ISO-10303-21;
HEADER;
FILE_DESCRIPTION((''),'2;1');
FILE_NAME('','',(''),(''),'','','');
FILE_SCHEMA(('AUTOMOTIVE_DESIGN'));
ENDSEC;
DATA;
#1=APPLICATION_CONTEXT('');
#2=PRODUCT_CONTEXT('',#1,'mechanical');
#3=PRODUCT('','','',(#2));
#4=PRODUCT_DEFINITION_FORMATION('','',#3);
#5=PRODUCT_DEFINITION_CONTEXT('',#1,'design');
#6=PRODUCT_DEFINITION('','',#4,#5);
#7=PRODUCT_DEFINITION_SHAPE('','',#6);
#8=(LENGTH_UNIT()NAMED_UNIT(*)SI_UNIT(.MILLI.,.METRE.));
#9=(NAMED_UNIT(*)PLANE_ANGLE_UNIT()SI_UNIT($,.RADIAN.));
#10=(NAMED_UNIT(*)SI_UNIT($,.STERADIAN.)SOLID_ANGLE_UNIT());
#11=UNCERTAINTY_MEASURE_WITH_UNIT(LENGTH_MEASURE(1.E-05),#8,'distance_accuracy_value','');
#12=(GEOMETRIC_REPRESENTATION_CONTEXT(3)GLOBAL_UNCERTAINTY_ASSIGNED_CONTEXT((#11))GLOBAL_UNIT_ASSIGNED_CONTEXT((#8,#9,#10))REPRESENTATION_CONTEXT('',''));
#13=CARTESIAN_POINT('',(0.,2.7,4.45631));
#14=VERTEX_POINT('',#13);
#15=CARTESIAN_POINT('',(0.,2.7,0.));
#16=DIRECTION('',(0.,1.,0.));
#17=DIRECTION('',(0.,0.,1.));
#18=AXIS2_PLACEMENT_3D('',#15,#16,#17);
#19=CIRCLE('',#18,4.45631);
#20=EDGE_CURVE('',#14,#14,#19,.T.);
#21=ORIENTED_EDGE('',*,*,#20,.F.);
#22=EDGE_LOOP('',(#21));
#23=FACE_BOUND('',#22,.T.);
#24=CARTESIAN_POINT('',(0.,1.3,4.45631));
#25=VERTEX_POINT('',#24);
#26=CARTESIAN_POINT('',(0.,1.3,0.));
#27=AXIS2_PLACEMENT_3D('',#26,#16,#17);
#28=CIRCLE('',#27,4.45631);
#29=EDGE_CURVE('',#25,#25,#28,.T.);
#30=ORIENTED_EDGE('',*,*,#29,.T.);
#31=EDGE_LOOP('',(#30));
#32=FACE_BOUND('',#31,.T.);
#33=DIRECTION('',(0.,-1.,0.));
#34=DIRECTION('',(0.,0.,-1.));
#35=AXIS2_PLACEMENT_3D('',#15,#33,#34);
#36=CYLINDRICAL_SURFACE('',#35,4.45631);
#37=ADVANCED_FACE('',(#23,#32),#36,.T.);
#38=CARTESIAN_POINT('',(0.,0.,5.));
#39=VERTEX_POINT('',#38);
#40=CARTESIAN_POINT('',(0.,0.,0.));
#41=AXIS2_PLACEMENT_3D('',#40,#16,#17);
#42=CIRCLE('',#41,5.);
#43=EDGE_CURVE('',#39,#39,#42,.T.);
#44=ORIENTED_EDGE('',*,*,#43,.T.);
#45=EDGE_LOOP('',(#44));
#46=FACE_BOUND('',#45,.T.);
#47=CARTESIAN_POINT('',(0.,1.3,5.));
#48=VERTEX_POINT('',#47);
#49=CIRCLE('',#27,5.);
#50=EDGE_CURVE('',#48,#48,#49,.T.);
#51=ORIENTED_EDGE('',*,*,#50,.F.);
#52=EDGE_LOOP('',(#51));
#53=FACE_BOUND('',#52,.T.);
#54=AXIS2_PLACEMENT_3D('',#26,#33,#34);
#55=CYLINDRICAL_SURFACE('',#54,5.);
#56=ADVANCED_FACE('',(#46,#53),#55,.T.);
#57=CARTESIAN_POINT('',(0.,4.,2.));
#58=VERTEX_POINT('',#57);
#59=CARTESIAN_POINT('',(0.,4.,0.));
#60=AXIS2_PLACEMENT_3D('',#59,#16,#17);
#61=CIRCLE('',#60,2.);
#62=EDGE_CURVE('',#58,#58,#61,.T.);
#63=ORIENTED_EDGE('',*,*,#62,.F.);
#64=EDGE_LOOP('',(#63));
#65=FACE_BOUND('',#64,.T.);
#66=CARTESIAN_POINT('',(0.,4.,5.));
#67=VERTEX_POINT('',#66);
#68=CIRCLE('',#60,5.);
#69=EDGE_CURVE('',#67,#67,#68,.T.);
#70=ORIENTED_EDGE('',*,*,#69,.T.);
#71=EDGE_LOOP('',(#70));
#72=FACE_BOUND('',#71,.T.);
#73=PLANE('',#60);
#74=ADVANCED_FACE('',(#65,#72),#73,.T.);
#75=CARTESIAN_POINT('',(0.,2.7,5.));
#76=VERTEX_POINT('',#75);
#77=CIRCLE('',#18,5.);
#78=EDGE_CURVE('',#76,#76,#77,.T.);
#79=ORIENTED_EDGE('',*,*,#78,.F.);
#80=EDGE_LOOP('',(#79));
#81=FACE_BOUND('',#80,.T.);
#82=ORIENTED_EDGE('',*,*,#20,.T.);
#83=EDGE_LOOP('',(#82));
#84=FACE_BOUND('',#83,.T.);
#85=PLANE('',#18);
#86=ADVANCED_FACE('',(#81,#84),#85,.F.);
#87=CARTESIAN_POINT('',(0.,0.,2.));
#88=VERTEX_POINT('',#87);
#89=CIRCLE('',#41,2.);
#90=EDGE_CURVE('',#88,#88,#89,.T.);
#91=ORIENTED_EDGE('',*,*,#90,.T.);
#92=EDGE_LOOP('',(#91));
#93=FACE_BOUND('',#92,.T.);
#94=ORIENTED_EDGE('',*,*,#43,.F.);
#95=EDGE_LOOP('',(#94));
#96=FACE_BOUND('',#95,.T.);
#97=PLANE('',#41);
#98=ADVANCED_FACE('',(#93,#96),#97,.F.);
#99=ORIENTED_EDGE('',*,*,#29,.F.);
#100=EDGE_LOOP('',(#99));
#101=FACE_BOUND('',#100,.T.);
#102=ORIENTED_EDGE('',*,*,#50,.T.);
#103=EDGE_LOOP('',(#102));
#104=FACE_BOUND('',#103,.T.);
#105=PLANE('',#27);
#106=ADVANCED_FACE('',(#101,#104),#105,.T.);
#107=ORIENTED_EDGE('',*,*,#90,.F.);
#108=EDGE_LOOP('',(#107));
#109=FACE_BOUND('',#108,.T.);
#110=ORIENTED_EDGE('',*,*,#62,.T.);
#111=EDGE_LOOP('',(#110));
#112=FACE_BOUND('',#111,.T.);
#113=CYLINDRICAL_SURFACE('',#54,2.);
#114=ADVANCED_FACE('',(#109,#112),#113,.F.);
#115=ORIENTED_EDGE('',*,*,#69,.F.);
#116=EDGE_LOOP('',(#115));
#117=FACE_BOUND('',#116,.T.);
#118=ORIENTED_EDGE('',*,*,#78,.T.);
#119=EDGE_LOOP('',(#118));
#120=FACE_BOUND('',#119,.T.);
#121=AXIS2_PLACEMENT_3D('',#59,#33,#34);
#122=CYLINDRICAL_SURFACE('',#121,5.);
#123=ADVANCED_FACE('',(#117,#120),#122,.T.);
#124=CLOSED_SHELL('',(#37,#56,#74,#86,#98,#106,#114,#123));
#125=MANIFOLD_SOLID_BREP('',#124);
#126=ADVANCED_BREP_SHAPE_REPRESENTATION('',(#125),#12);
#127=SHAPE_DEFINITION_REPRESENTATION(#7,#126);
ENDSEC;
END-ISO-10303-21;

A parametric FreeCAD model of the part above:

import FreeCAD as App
import Part
import Sketcher

V = App.Vector

doc = App.newDocument("Part")
body = doc.addObject("PartDesign::Body", "Body")

# Sketch on XZ plane
sketch1 = body.newObject("Sketcher::SketchObject", "Sketch")
sketch1.AttachmentSupport = (doc.getObject("XZ_Plane"), [""])
sketch1.MapMode = "FlatFace"
sketch1.addGeometry([
    Part.Circle(V(0, 0, 0), V(0, 0, 1), 5),
    Part.Circle(V(0, 0, 0), V(0, 0, 1), 2),
], False)
sketch1.addConstraint([
    Sketcher.Constraint("Coincident", 0, 3, -1, 1),
    Sketcher.Constraint("Coincident", 1, 3, -1, 1),
    Sketcher.Constraint("Diameter", 0, 10.0),
    Sketcher.Constraint("Diameter", 1, 4.0),
])
pad1 = body.newObject("PartDesign::Pad", "Pad")
pad1.Profile = sketch1
pad1.Length = 1.3
pad1.Reversed = True

# Sketch on XZ plane
sketch2 = body.newObject("Sketcher::SketchObject", "Sketch001")
sketch2.AttachmentSupport = (doc.getObject("XZ_Plane"), [""])
sketch2.MapMode = "FlatFace"
sketch2.AttachmentOffset = App.Placement(V(0, 0, -1.3), App.Rotation())
sketch2.addGeometry([
    Part.Circle(V(0, 0, 0), V(0, 0, 1), 4.45631),
    Part.Circle(V(0, 0, 0), V(0, 0, 1), 2),
], False)
sketch2.addConstraint([
    Sketcher.Constraint("Coincident", 0, 3, -1, 1),
    Sketcher.Constraint("Coincident", 1, 3, -1, 1),
    Sketcher.Constraint("Diameter", 1, 4.0),
    Sketcher.Constraint("Diameter", 0, 8.912619),
])
pad2 = body.newObject("PartDesign::Pad", "Pad001")
pad2.Profile = sketch2
pad2.Length = 1.4
pad2.Reversed = True
doc.recompute()

linearpattern = body.newObject("PartDesign::LinearPattern", "LinearPattern")
linearpattern.Originals = [pad1]
linearpattern.Direction = (doc.getObject("Y_Axis"), [""])
linearpattern.Mode = "offset"
linearpattern.Offset = 2.7
linearpattern.Occurrences = 2
body.Tip = linearpattern

doc.recompute()
